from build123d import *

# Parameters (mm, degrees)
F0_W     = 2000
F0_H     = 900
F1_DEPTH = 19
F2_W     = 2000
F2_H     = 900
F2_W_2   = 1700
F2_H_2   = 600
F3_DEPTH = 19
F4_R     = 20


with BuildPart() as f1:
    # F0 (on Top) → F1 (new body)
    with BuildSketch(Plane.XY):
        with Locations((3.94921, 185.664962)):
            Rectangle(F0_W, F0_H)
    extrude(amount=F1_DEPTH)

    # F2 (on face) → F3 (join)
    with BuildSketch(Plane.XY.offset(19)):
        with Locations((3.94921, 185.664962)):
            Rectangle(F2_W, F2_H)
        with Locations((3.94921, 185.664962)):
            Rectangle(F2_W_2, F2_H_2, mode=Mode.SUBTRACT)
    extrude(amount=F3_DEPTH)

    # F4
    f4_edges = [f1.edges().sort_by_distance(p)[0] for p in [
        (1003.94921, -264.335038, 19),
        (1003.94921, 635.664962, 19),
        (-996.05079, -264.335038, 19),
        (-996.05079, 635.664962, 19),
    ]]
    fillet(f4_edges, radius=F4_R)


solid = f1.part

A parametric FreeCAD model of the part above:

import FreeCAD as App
import Part
import Sketcher


def edges_at(feature, points):
    """Names of the edges that pass closest to the given points."""
    edges = feature.Shape.Edges
    near = lambda p: min(range(len(edges)), key=lambda i: edges[i].distToShape(Part.Vertex(*p))[0])
    return sorted({f"Edge{near(p) + 1}" for p in points})

doc = App.newDocument("Part")
body = doc.addObject("PartDesign::Body", "Body")

sketch1 = body.newObject("Sketcher::SketchObject", "Sketch")
sketch1.AttachmentSupport = (doc.getObject("XY_Plane"), [""])
sketch1.MapMode = "FlatFace"
sketch1.addGeometry([
    Part.LineSegment(App.Vector(-996, 636, 0), App.Vector(-996, -264, 0)),
    Part.LineSegment(App.Vector(-996, -264, 0), App.Vector(1004, -264, 0)),
    Part.LineSegment(App.Vector(1004, -264, 0), App.Vector(1004, 636, 0)),
    Part.LineSegment(App.Vector(1004, 636, 0), App.Vector(-996, 636, 0)),
], False)
sketch1.addConstraint([
    Sketcher.Constraint("Coincident", 0, 2, 1, 1),
    Sketcher.Constraint("Coincident", 1, 2, 2, 1),
    Sketcher.Constraint("Coincident", 2, 2, 3, 1),
    Sketcher.Constraint("Coincident", 3, 2, 0, 1),
    Sketcher.Constraint("Vertical", 0),
    Sketcher.Constraint("Horizontal", 1),
    Sketcher.Constraint("Vertical", 2),
    Sketcher.Constraint("Horizontal", 3),
    Sketcher.Constraint("DistanceX", 1, 1, 1, 2, 2000.0),
    Sketcher.Constraint("DistanceY", 0, 2, 0, 1, 900.0),
    Sketcher.Constraint("DistanceX", 0, 2, -1, 1, 996.05079),
    Sketcher.Constraint("DistanceY", 0, 2, -1, 1, 264.335038),
])
pad1 = body.newObject("PartDesign::Pad", "Pad")
pad1.Profile = sketch1
pad1.Length = 19

sketch2 = body.newObject("Sketcher::SketchObject", "Sketch001")
sketch2.AttachmentSupport = (doc.getObject("XY_Plane"), [""])
sketch2.MapMode = "FlatFace"
sketch2.AttachmentOffset = App.Placement(App.Vector(0, 0, 19), App.Rotation())
sketch2.addGeometry([
    Part.LineSegment(App.Vector(-996, 636, 0), App.Vector(-996, -264, 0)),
    Part.LineSegment(App.Vector(-996, -264, 0), App.Vector(1004, -264, 0)),
    Part.LineSegment(App.Vector(1004, -264, 0), App.Vector(1004, 636, 0)),
    Part.LineSegment(App.Vector(1004, 636, 0), App.Vector(-996, 636, 0)),
    Part.LineSegment(App.Vector(854, -114, 0), App.Vector(-846, -114, 0)),
    Part.LineSegment(App.Vector(-846, -114, 0), App.Vector(-846, 486, 0)),
    Part.LineSegment(App.Vector(-846, 486, 0), App.Vector(854, 486, 0)),
    Part.LineSegment(App.Vector(854, 486, 0), App.Vector(854, -114, 0)),
], False)
sketch2.addConstraint([
    Sketcher.Constraint("Coincident", 0, 2, 1, 1),
    Sketcher.Constraint("Coincident", 1, 2, 2, 1),
    Sketcher.Constraint("Coincident", 2, 2, 3, 1),
    Sketcher.Constraint("Coincident", 3, 2, 0, 1),
    Sketcher.Constraint("Coincident", 4, 2, 5, 1),
    Sketcher.Constraint("Coincident", 5, 2, 6, 1),
    Sketcher.Constraint("Coincident", 6, 2, 7, 1),
    Sketcher.Constraint("Coincident", 7, 2, 4, 1),
    Sketcher.Constraint("Vertical", 0),
    Sketcher.Constraint("Horizontal", 1),
    Sketcher.Constraint("Vertical", 2),
    Sketcher.Constraint("Horizontal", 3),
    Sketcher.Constraint("Horizontal", 4),
    Sketcher.Constraint("Vertical", 5),
    Sketcher.Constraint("Horizontal", 6),
    Sketcher.Constraint("Vertical", 7),
    Sketcher.Constraint("DistanceX", 1, 1, 1, 2, 2000.0),
    Sketcher.Constraint("DistanceX", 4, 2, 4, 1, 1700.0),
    Sketcher.Constraint("DistanceY", 0, 2, 0, 1, 900.0),
    Sketcher.Constraint("DistanceY", 5, 1, 5, 2, 600.0),
    Sketcher.Constraint("DistanceX", 0, 2, 4, 2, 150.0),
    Sketcher.Constraint("DistanceY", 0, 2, 4, 2, 150.0),
    Sketcher.Constraint("DistanceX", 0, 2, -1, 1, 996.05079),
    Sketcher.Constraint("DistanceY", 0, 2, -1, 1, 264.335038),
])
pad2 = body.newObject("PartDesign::Pad", "Pad001")
pad2.Profile = sketch2
pad2.Length = 19
doc.recompute()

fillet = body.newObject("PartDesign::Fillet", "Fillet")
fillet.Base = (pad2, edges_at(pad2, [
    (1003.949, -264.335, 19),
    (1003.949, 635.665, 19),
    (-996.051, -264.335, 19),
    (-996.051, 635.665, 19),
]))
fillet.Radius = 20

doc.recompute()
